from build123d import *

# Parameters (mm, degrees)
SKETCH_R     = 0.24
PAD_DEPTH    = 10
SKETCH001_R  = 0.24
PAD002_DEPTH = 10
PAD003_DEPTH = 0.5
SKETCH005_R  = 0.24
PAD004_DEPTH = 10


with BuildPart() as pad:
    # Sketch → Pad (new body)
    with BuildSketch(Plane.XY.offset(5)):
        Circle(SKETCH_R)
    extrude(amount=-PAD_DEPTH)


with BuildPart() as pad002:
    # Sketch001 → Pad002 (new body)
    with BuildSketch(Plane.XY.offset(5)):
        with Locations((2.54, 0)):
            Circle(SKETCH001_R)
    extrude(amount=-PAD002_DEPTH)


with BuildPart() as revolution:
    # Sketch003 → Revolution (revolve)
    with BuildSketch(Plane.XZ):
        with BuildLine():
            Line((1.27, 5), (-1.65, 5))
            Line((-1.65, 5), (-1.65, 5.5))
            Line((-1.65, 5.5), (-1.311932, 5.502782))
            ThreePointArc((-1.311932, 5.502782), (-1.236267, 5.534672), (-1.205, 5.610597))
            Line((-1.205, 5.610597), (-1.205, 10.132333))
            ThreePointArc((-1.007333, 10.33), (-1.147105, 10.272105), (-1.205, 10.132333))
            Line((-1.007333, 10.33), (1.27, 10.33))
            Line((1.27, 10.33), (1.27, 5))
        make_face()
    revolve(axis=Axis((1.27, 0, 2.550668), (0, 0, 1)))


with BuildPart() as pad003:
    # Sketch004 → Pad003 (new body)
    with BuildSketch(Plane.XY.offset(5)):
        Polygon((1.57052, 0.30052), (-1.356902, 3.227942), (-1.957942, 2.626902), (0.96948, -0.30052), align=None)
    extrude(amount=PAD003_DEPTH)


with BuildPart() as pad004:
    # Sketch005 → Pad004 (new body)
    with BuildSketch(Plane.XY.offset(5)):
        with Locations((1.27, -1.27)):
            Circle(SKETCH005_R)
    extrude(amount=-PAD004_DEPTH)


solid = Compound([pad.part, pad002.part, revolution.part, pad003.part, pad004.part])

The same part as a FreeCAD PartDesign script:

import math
import FreeCAD as App
import Part
import Sketcher
Q = App.Units.Quantity


def add_polygon(sketch, points):
    """Adds a closed chain of lines whose ends are joined by coincident constraints."""
    first, n = sketch.GeometryCount, len(points)
    for a, b in zip(points, points[1:] + points[:1]):
        sketch.addGeometry(Part.LineSegment(App.Vector(*a, 0), App.Vector(*b, 0)), False)
    for i in range(n):
        sketch.addConstraint(Sketcher.Constraint("Coincident", first + i, 2, first + (i + 1) % n, 1))

doc = App.newDocument("Part")
body = doc.addObject("PartDesign::Body", "Body")

# Sketch on XY plane
sketch1 = body.newObject("Sketcher::SketchObject", "Sketch")
sketch1.AttachmentSupport = (doc.getObject("XY_Plane"), [""])
sketch1.MapMode = "FlatFace"
sketch1.AttachmentOffset = App.Placement(App.Vector(0, 0, 5), App.Rotation())
sketch1.addGeometry(Part.Circle(App.Vector(0, 0, 0), App.Vector(0, 0, 1), 0.24), False)
sketch1.addConstraint([
    Sketcher.Constraint("Coincident", 0, 3, -1, 1),
    Sketcher.Constraint("Diameter", 0, Q("0.48 mm")),
])
pad1 = body.newObject("PartDesign::Pad", "Pad")
pad1.Profile = sketch1
pad1.Length = 10
pad1.Reversed = True
body2 = doc.addObject("PartDesign::Body", "Body001")

# Sketch on XY plane
sketch2 = body2.newObject("Sketcher::SketchObject", "Sketch001")
sketch2.AttachmentSupport = (doc.getObject("XY_Plane001"), [""])
sketch2.MapMode = "FlatFace"
sketch2.AttachmentOffset = App.Placement(App.Vector(0, 0, 5), App.Rotation())
sketch2.addGeometry(Part.Circle(App.Vector(2.54, 0, 0), App.Vector(0, 0, 1), 0.24), False)
sketch2.addConstraint([
    Sketcher.Constraint("PointOnObject", 0, 3, -1),
    Sketcher.Constraint("Diameter", 0, Q("0.48 mm")),
    Sketcher.Constraint("DistanceX", -1, 1, 0, 3, Q("2.54 mm")),
])
pad2 = body2.newObject("PartDesign::Pad", "Pad001")
pad2.Profile = sketch2
pad2.Length = 10
pad2.Reversed = True
body3 = doc.addObject("PartDesign::Body", "Body002")

# Sketch on XZ plane
sketch3 = body3.newObject("Sketcher::SketchObject", "Sketch002")
sketch3.AttachmentSupport = (doc.getObject("XZ_Plane002"), [""])
sketch3.MapMode = "FlatFace"
sketch3.addGeometry([
    Part.LineSegment(App.Vector(-1.65, 5, 0), App.Vector(1.27, 5, 0)),  # 0
    Part.LineSegment(App.Vector(1.27, 5, 0), App.Vector(1.27, 10.33, 0)),  # 1
    Part.LineSegment(App.Vector(1.27, 10.33, 0), App.Vector(-1.01, 10.33, 0)),  # 2
    Part.ArcOfCircle(Part.Circle(App.Vector(-1.01, 10.13, 0), App.Vector(0, 0, 1), 0.2), math.radians(90), math.radians(180)),  # 3
    Part.LineSegment(App.Vector(-1.21, 10.13, 0), App.Vector(-1.21, 5.61, 0)),  # 4
    Part.ArcOfCircle(Part.Circle(App.Vector(-1.31, 5.61, 0), App.Vector(0, 0, 1), 0.11), math.radians(-90), math.radians(0)),  # 5
    Part.LineSegment(App.Vector(-1.31, 5.5, 0), App.Vector(-1.65, 5.5, 0)),  # 6
    Part.LineSegment(App.Vector(-1.65, 5.5, 0), App.Vector(-1.65, 5, 0)),  # 7
], False)
sketch3.addGeometry(Part.LineSegment(App.Vector(1.27, 5, 0), App.Vector(1.27, 10.33, 0)), True)  # axis
sketch3.addConstraint([
    Sketcher.Constraint("Coincident", 0, 2, 1, 1),
    Sketcher.Constraint("Coincident", 1, 2, 2, 1),
    Sketcher.Constraint("Coincident", 2, 2, 3, 1),
    Sketcher.Constraint("Coincident", 3, 2, 4, 1),
    Sketcher.Constraint("Coincident", 4, 2, 5, 2),
    Sketcher.Constraint("Coincident", 5, 1, 6, 1),
    Sketcher.Constraint("Coincident", 6, 2, 7, 1),
    Sketcher.Constraint("Coincident", 7, 2, 0, 1),
    Sketcher.Constraint("Horizontal", 0),
    Sketcher.Constraint("Vertical", 1),
    Sketcher.Constraint("Horizontal", 2),
    Sketcher.Constraint("Vertical", 4),
    Sketcher.Constraint("Vertical", 7),
    Sketcher.Constraint("Vertical", 8),
    Sketcher.Constraint("Coincident", 8, 1, 0, 2),
    Sketcher.Constraint("Horizontal", 5, 3, 4, 2),
    Sketcher.Constraint("Horizontal", 2, 2, 8, 2),
    Sketcher.Constraint("Vertical", 3, 3, 2, 2),
    Sketcher.Constraint("DistanceY", 7, 2, 7, 1, Q("0.5 mm")),
    Sketcher.Constraint("DistanceY", -1, 1, 0, 2, Q("5 mm")),
    Sketcher.Constraint("DistanceX", 0, 1, 0, 2, Q("2.92 mm")),
    Sketcher.Constraint("DistanceY", 1, 1, 1, 2, Q("5.33 mm")),
    Sketcher.Constraint("DistanceX", -1, 1, 0, 2, Q("1.27 mm")),
    Sketcher.Constraint("Radius", 5, Q("0.10782 mm")),
    Sketcher.Constraint("DistanceX", 3, 2, -1, 1, Q("1.205 mm")),
    Sketcher.Constraint("Radius", 3, Q("0.197666 mm")),
    Sketcher.Constraint("DistanceY", -1, 1, 5, 3, Q("5.610598 mm")),
    Sketcher.Constraint("Distance", 6, Q("0.338079 mm")),
    Sketcher.Constraint("DistanceY", 4, 2, 4, 1, Q("4.521736 mm")),
])
revolution = body3.newObject("PartDesign::Revolution", "Revolution")
revolution.Profile = sketch3
revolution.ReferenceAxis = (sketch3, ["Axis0"])
revolution.Angle = 360
body4 = doc.addObject("PartDesign::Body", "Body003")

# Sketch on XY plane
sketch4 = body4.newObject("Sketcher::SketchObject", "Sketch003")
sketch4.AttachmentSupport = (doc.getObject("XY_Plane003"), [""])
sketch4.MapMode = "FlatFace"
sketch4.AttachmentOffset = App.Placement(App.Vector(0, 0, 5), App.Rotation())
add_polygon(sketch4, [(1.6, 0.3), (-1.4, 3.2), (-2, 2.6), (1, -0.3)])  # lines 0-3
sketch4.addConstraint([
    Sketcher.Constraint("Perpendicular", 0, 1),
    Sketcher.Constraint("Perpendicular", 1, 2),
    Sketcher.Constraint("Perpendicular", 2, 3),
    Sketcher.Constraint("Angle", 0, Q("135 deg")),
    Sketcher.Constraint("Distance", 0, Q("4.14 mm")),
    Sketcher.Constraint("Distance", 1, Q("0.849999 mm")),
    Sketcher.Constraint("DistanceY", -1, 1, 1, 2, Q("2.626902 mm")),
    Sketcher.Constraint("DistanceX", -1, 1, 2, 2, Q("0.96948 mm")),
])
pad3 = body4.newObject("PartDesign::Pad", "Pad002")
pad3.Profile = sketch4
pad3.Length = 0.5
body5 = doc.addObject("PartDesign::Body", "Body004")

# Sketch on XY plane
sketch5 = body5.newObject("Sketcher::SketchObject", "Sketch004")
sketch5.AttachmentSupport = (doc.getObject("XY_Plane004"), [""])
sketch5.MapMode = "FlatFace"
sketch5.AttachmentOffset = App.Placement(App.Vector(0, 0, 5), App.Rotation())
sketch5.addGeometry(Part.Circle(App.Vector(1.27, -1.27, 0), App.Vector(0, 0, 1), 0.24), False)
sketch5.addConstraint([
    Sketcher.Constraint("Diameter", 0, Q("0.48 mm")),
    Sketcher.Constraint("DistanceX", -1, 1, 0, 3, Q("1.27 mm")),
    Sketcher.Constraint("DistanceY", 0, 3, -1, 1, Q("1.27 mm")),
])
pad4 = body5.newObject("PartDesign::Pad", "Pad003")
pad4.Profile = sketch5
pad4.Length = 10
pad4.Reversed = True

doc.recompute()
